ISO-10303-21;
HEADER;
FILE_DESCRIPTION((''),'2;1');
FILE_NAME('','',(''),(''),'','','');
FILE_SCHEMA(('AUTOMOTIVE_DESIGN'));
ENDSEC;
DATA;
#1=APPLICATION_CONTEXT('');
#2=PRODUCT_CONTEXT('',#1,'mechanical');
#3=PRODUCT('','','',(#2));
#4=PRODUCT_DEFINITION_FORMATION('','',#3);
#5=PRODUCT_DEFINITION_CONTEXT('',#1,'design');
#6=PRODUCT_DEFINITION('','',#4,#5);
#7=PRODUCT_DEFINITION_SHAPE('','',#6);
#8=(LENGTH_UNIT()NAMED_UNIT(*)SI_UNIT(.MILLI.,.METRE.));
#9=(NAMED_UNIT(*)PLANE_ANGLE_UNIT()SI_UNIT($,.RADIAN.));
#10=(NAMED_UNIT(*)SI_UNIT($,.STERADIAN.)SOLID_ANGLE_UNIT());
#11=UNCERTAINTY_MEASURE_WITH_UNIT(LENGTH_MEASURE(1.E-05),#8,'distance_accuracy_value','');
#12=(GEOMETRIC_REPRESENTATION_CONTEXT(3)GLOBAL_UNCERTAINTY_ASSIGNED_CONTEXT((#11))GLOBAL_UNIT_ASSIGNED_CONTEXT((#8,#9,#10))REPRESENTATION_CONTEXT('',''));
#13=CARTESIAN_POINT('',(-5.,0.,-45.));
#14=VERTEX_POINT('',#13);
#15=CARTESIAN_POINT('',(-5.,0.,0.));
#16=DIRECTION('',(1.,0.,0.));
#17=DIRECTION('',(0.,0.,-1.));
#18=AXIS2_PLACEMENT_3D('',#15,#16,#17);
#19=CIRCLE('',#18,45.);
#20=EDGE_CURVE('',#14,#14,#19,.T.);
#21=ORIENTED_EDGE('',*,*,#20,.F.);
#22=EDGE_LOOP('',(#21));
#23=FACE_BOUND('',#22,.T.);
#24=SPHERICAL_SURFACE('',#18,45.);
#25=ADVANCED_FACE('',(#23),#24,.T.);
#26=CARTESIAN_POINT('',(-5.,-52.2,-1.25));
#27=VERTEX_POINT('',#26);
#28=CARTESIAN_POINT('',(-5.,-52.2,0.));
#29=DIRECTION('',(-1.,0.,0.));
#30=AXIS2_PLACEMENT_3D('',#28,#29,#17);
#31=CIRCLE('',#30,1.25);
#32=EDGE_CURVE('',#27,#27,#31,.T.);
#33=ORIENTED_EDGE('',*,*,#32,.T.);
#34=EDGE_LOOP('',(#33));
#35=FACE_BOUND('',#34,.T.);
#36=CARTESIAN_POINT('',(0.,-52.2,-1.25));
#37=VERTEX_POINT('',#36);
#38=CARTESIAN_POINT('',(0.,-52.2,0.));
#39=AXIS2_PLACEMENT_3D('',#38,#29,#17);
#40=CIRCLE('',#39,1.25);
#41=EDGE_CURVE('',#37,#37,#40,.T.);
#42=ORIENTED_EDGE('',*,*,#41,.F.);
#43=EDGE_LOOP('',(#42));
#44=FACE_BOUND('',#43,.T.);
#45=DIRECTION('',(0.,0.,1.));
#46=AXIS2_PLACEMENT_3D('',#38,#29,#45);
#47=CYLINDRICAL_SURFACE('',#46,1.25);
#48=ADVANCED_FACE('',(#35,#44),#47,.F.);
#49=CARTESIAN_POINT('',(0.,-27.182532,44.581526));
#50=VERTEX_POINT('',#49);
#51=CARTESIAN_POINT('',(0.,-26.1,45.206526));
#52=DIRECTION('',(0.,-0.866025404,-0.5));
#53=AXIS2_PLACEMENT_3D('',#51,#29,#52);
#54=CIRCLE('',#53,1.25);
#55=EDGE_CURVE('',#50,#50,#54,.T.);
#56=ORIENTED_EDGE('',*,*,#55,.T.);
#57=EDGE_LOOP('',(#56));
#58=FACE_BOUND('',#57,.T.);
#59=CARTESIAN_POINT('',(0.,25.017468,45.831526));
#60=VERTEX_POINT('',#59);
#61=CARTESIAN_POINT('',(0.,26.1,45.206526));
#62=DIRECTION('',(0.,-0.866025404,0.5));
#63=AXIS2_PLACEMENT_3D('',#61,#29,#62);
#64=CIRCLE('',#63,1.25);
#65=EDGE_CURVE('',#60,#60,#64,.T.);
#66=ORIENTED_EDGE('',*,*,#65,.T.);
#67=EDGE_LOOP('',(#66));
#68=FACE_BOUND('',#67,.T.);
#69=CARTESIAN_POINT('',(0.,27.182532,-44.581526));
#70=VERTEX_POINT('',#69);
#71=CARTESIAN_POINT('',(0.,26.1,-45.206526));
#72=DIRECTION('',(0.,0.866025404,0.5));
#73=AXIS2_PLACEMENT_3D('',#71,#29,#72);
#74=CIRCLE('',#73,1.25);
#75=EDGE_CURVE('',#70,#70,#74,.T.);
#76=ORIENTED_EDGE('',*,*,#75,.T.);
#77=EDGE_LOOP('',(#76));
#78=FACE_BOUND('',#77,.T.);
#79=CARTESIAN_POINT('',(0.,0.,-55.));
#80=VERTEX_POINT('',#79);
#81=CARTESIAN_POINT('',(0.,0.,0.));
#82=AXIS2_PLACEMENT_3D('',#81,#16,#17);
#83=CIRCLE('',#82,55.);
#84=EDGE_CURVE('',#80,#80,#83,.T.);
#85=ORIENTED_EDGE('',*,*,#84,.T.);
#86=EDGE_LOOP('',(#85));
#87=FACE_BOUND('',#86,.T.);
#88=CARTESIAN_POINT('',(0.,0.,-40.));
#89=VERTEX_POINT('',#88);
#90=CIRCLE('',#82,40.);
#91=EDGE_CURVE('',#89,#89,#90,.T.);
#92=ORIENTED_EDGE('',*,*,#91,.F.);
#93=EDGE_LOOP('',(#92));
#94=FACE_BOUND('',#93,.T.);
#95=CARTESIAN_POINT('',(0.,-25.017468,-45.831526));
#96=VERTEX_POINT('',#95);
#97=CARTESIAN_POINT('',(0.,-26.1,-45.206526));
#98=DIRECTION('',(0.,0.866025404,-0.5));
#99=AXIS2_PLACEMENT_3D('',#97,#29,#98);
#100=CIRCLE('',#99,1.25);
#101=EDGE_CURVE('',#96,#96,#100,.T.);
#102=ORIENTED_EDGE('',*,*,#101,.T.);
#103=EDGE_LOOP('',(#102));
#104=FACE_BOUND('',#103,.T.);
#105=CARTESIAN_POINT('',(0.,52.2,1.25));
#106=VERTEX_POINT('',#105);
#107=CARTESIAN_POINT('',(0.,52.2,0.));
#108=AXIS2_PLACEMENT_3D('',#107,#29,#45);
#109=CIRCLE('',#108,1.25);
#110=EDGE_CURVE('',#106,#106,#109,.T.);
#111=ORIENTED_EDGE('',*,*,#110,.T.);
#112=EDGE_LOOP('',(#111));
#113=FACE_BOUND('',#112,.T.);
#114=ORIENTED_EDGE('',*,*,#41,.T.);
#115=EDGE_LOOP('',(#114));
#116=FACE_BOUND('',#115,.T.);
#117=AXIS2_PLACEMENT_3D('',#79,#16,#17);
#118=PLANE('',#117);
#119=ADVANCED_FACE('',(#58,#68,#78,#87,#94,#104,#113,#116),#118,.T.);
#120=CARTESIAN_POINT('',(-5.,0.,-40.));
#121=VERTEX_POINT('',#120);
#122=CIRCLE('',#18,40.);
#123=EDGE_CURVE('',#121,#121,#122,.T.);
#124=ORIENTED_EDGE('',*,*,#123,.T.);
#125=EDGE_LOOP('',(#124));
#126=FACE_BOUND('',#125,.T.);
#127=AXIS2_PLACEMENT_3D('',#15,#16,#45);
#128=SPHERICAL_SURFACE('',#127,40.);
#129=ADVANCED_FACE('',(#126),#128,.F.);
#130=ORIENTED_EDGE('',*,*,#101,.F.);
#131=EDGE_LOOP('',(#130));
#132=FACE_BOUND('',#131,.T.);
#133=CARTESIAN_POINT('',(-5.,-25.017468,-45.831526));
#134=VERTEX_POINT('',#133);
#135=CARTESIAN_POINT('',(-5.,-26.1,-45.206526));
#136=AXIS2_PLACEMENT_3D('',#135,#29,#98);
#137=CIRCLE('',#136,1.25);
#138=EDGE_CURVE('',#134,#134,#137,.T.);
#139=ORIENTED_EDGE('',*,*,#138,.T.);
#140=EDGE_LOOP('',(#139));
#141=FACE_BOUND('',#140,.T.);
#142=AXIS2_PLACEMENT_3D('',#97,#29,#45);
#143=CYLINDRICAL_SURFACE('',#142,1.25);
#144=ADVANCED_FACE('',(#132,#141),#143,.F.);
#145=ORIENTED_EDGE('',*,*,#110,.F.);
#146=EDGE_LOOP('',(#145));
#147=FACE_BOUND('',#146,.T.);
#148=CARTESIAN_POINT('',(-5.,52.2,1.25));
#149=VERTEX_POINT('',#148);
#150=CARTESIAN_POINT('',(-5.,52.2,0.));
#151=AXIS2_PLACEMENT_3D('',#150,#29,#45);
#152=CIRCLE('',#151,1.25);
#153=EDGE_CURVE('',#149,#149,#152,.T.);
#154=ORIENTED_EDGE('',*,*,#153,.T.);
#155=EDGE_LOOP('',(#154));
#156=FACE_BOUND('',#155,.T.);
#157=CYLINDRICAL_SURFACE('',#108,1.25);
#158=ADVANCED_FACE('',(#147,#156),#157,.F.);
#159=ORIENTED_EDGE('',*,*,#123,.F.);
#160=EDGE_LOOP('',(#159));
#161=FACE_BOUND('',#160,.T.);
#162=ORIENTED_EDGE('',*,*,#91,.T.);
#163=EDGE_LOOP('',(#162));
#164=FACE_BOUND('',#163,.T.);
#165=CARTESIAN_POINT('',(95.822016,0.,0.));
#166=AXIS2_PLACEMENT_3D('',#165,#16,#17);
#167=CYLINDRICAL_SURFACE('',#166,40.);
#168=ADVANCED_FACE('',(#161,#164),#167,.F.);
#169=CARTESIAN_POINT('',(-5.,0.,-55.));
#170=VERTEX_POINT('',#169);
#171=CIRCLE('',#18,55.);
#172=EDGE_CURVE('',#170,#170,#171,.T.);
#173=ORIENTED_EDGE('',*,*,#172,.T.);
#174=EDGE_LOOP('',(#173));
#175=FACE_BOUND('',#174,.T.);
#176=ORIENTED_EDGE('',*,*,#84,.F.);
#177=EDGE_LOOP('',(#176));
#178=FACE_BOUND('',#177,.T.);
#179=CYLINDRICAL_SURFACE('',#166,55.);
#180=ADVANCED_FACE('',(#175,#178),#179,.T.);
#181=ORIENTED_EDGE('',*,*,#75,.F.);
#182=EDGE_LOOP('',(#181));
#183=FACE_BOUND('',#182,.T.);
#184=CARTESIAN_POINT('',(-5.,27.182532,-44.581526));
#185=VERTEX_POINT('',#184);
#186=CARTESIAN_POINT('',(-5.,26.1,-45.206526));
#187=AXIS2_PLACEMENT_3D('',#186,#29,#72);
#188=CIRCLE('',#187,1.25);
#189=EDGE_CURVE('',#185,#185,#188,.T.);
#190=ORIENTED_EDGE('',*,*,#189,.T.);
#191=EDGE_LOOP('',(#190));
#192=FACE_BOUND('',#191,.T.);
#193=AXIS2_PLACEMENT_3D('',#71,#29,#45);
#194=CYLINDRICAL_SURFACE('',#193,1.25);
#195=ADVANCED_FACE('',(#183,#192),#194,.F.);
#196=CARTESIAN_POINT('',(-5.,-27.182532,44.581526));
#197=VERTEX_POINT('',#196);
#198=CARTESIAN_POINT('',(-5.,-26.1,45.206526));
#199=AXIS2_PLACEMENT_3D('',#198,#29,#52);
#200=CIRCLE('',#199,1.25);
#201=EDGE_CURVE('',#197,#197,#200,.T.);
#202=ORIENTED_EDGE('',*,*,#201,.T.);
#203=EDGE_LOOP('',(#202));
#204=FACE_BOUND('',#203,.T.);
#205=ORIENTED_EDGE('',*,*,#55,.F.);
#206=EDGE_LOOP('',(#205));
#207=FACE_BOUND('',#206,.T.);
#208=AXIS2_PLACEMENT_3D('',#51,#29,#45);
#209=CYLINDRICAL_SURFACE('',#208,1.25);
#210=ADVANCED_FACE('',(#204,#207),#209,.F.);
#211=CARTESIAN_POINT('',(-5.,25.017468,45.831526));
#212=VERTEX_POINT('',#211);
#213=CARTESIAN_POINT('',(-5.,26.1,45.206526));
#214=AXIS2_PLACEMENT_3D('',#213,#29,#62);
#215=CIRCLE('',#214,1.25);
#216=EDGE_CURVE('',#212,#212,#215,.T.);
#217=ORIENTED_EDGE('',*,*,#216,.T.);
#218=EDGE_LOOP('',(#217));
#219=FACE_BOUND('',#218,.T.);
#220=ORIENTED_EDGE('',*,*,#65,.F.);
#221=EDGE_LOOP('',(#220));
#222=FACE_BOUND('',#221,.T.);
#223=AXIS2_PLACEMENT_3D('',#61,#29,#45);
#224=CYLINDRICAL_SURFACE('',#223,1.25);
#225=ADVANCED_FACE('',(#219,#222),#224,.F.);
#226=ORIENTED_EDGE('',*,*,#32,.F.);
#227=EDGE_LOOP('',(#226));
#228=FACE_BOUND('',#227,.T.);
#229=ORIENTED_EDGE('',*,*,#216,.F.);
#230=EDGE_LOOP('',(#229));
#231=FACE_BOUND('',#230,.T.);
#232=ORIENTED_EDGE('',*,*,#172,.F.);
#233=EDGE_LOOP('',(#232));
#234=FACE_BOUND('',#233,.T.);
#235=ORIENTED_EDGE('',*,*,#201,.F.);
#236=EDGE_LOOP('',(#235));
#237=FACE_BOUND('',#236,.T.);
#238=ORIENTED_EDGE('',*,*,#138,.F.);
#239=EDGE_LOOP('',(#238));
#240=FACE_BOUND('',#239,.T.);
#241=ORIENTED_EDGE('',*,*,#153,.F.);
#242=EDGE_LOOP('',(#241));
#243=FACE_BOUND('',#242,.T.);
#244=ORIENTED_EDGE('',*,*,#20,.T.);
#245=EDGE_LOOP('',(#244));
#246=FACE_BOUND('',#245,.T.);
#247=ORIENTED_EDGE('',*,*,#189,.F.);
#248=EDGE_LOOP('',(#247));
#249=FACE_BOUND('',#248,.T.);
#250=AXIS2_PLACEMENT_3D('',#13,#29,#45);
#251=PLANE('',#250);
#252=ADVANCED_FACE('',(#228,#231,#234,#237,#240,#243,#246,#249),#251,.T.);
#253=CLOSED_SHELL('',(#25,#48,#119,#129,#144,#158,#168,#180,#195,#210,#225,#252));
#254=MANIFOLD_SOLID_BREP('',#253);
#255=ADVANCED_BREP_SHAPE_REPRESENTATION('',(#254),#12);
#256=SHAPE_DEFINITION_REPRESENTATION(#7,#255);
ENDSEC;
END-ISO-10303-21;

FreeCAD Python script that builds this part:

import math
import FreeCAD as App
import Part
import Sketcher
from FreeCAD import Vector
Q = App.Units.Quantity

doc = App.newDocument("Part")
params = doc.addObject("Spreadsheet::Sheet", "Params")
for row, (alias, value) in enumerate([
    ("sketch1_radius", "40 mm"),
    ("sketch1_radius2", "45 mm"),
    ("sketch1_height", "15 mm"),
    ("revolution_angle", "360 deg"),
    ("sketch2_diameter", "2.5 mm"),
], start=1):
    params.set(f"A{row}", alias)
    params.set(f"B{row}", "=" + value)
    params.setAlias(f"B{row}", alias)

body = doc.addObject("PartDesign::Body", "Body")

# Sketch on XZ plane
sketch1 = body.newObject("Sketcher::SketchObject", "Sketch")
sketch1.AttachmentSupport = (doc.getObject("XZ_Plane"), [""])
sketch1.MapMode = "FlatFace"
sketch1.addGeometry([
    Part.LineSegment(Vector(-50, 0, 0), Vector(-45, 0, 0)),  # 0
    Part.ArcOfCircle(Part.Circle(Vector(-5, 0, 0), Vector(0, 0, 1), 40), math.radians(-180), math.radians(-90)),  # 1
    Part.LineSegment(Vector(-5, -40, 0), Vector(0, -40, 0)),  # 2
    Part.LineSegment(Vector(0, -40, 0), Vector(0, -55, 0)),  # 3
    Part.LineSegment(Vector(0, -55, 0), Vector(-5, -55, 0)),  # 4
    Part.LineSegment(Vector(-5, -55, 0), Vector(-5, -45, 0)),  # 5
    Part.ArcOfCircle(Part.Circle(Vector(-5, 0, 0), Vector(0, 0, 1), 45), math.radians(-180), math.radians(-90)),  # 6
], False)
sketch1.addConstraint([
    Sketcher.Constraint("Coincident", 0, 2, 1, 1),
    Sketcher.Constraint("Tangent", 1, 2, 2, 1),
    Sketcher.Constraint("Coincident", 2, 2, 3, 1),
    Sketcher.Constraint("Coincident", 3, 2, 4, 1),
    Sketcher.Constraint("Coincident", 4, 2, 5, 1),
    Sketcher.Constraint("Coincident", 5, 2, 6, 2),
    Sketcher.Constraint("Coincident", 6, 1, 0, 1),
    Sketcher.Constraint("Horizontal", 0),
    Sketcher.Constraint("Horizontal", 2),
    Sketcher.Constraint("Vertical", 3),
    Sketcher.Constraint("Horizontal", 4),
    Sketcher.Constraint("Vertical", 5),
    Sketcher.Constraint("Coincident", 6, 3, 1, 3),
    Sketcher.Constraint("PointOnObject", 1, 3, -1),
    Sketcher.Constraint("PointOnObject", 0, 2, -1),
    Sketcher.Constraint("PointOnObject", 2, 2, -2),
    Sketcher.Constraint("Vertical", 1, 2, 4, 2),
    Sketcher.Constraint("Equal", 0, 2),
    Sketcher.Constraint("Radius", 1, Q("40 mm")),
    Sketcher.Constraint("Radius", 6, Q("45 mm")),
    Sketcher.Constraint("DistanceY", 3, 2, 3, 1, Q("15 mm")),
])
sketch1.setExpression("Constraints[18]", "Params.sketch1_radius")
sketch1.setExpression("Constraints[19]", "Params.sketch1_radius2")
sketch1.setExpression("Constraints[20]", "Params.sketch1_height")
revolution = body.newObject("PartDesign::Revolution", "Revolution")
revolution.Profile = sketch1
revolution.ReferenceAxis = (sketch1, ["H_Axis"])
revolution.setExpression("Angle", "Params.revolution_angle")

# Sketch on YZ plane
sketch2 = body.newObject("Sketcher::SketchObject", "Sketch001")
sketch2.AttachmentSupport = (doc.getObject("YZ_Plane"), [""])
sketch2.MapMode = "FlatFace"
sketch2.AttachmentOffset = App.Placement(Vector(0, 0, -5), App.Rotation())
sketch2.addGeometry(Part.Circle(Vector(52.2, 0, 0), Vector(0, 0, 1), 1.25), False)
sketch2.addConstraint([
    Sketcher.Constraint("PointOnObject", 0, 3, -1),
    Sketcher.Constraint("Diameter", 0, Q("2.5 mm")),
    Sketcher.Constraint("DistanceX", -1, 1, 0, 3, Q("52.2 mm")),
])
sketch2.setExpression("Constraints[1]", "Params.sketch2_diameter")
pocket1 = body.newObject("PartDesign::Pocket", "Pocket")
pocket1.Profile = sketch2
pocket1.Type = "ThroughAll"
pocket1.Reversed = True
doc.recompute()

polarpattern = body.newObject("PartDesign::PolarPattern", "PolarPattern")
polarpattern.Originals = [pocket1]
polarpattern.Axis = (doc.getObject("X_Axis"), [""])
polarpattern.Angle = 360
polarpattern.Occurrences = 6
body.Tip = polarpattern

doc.recompute()
